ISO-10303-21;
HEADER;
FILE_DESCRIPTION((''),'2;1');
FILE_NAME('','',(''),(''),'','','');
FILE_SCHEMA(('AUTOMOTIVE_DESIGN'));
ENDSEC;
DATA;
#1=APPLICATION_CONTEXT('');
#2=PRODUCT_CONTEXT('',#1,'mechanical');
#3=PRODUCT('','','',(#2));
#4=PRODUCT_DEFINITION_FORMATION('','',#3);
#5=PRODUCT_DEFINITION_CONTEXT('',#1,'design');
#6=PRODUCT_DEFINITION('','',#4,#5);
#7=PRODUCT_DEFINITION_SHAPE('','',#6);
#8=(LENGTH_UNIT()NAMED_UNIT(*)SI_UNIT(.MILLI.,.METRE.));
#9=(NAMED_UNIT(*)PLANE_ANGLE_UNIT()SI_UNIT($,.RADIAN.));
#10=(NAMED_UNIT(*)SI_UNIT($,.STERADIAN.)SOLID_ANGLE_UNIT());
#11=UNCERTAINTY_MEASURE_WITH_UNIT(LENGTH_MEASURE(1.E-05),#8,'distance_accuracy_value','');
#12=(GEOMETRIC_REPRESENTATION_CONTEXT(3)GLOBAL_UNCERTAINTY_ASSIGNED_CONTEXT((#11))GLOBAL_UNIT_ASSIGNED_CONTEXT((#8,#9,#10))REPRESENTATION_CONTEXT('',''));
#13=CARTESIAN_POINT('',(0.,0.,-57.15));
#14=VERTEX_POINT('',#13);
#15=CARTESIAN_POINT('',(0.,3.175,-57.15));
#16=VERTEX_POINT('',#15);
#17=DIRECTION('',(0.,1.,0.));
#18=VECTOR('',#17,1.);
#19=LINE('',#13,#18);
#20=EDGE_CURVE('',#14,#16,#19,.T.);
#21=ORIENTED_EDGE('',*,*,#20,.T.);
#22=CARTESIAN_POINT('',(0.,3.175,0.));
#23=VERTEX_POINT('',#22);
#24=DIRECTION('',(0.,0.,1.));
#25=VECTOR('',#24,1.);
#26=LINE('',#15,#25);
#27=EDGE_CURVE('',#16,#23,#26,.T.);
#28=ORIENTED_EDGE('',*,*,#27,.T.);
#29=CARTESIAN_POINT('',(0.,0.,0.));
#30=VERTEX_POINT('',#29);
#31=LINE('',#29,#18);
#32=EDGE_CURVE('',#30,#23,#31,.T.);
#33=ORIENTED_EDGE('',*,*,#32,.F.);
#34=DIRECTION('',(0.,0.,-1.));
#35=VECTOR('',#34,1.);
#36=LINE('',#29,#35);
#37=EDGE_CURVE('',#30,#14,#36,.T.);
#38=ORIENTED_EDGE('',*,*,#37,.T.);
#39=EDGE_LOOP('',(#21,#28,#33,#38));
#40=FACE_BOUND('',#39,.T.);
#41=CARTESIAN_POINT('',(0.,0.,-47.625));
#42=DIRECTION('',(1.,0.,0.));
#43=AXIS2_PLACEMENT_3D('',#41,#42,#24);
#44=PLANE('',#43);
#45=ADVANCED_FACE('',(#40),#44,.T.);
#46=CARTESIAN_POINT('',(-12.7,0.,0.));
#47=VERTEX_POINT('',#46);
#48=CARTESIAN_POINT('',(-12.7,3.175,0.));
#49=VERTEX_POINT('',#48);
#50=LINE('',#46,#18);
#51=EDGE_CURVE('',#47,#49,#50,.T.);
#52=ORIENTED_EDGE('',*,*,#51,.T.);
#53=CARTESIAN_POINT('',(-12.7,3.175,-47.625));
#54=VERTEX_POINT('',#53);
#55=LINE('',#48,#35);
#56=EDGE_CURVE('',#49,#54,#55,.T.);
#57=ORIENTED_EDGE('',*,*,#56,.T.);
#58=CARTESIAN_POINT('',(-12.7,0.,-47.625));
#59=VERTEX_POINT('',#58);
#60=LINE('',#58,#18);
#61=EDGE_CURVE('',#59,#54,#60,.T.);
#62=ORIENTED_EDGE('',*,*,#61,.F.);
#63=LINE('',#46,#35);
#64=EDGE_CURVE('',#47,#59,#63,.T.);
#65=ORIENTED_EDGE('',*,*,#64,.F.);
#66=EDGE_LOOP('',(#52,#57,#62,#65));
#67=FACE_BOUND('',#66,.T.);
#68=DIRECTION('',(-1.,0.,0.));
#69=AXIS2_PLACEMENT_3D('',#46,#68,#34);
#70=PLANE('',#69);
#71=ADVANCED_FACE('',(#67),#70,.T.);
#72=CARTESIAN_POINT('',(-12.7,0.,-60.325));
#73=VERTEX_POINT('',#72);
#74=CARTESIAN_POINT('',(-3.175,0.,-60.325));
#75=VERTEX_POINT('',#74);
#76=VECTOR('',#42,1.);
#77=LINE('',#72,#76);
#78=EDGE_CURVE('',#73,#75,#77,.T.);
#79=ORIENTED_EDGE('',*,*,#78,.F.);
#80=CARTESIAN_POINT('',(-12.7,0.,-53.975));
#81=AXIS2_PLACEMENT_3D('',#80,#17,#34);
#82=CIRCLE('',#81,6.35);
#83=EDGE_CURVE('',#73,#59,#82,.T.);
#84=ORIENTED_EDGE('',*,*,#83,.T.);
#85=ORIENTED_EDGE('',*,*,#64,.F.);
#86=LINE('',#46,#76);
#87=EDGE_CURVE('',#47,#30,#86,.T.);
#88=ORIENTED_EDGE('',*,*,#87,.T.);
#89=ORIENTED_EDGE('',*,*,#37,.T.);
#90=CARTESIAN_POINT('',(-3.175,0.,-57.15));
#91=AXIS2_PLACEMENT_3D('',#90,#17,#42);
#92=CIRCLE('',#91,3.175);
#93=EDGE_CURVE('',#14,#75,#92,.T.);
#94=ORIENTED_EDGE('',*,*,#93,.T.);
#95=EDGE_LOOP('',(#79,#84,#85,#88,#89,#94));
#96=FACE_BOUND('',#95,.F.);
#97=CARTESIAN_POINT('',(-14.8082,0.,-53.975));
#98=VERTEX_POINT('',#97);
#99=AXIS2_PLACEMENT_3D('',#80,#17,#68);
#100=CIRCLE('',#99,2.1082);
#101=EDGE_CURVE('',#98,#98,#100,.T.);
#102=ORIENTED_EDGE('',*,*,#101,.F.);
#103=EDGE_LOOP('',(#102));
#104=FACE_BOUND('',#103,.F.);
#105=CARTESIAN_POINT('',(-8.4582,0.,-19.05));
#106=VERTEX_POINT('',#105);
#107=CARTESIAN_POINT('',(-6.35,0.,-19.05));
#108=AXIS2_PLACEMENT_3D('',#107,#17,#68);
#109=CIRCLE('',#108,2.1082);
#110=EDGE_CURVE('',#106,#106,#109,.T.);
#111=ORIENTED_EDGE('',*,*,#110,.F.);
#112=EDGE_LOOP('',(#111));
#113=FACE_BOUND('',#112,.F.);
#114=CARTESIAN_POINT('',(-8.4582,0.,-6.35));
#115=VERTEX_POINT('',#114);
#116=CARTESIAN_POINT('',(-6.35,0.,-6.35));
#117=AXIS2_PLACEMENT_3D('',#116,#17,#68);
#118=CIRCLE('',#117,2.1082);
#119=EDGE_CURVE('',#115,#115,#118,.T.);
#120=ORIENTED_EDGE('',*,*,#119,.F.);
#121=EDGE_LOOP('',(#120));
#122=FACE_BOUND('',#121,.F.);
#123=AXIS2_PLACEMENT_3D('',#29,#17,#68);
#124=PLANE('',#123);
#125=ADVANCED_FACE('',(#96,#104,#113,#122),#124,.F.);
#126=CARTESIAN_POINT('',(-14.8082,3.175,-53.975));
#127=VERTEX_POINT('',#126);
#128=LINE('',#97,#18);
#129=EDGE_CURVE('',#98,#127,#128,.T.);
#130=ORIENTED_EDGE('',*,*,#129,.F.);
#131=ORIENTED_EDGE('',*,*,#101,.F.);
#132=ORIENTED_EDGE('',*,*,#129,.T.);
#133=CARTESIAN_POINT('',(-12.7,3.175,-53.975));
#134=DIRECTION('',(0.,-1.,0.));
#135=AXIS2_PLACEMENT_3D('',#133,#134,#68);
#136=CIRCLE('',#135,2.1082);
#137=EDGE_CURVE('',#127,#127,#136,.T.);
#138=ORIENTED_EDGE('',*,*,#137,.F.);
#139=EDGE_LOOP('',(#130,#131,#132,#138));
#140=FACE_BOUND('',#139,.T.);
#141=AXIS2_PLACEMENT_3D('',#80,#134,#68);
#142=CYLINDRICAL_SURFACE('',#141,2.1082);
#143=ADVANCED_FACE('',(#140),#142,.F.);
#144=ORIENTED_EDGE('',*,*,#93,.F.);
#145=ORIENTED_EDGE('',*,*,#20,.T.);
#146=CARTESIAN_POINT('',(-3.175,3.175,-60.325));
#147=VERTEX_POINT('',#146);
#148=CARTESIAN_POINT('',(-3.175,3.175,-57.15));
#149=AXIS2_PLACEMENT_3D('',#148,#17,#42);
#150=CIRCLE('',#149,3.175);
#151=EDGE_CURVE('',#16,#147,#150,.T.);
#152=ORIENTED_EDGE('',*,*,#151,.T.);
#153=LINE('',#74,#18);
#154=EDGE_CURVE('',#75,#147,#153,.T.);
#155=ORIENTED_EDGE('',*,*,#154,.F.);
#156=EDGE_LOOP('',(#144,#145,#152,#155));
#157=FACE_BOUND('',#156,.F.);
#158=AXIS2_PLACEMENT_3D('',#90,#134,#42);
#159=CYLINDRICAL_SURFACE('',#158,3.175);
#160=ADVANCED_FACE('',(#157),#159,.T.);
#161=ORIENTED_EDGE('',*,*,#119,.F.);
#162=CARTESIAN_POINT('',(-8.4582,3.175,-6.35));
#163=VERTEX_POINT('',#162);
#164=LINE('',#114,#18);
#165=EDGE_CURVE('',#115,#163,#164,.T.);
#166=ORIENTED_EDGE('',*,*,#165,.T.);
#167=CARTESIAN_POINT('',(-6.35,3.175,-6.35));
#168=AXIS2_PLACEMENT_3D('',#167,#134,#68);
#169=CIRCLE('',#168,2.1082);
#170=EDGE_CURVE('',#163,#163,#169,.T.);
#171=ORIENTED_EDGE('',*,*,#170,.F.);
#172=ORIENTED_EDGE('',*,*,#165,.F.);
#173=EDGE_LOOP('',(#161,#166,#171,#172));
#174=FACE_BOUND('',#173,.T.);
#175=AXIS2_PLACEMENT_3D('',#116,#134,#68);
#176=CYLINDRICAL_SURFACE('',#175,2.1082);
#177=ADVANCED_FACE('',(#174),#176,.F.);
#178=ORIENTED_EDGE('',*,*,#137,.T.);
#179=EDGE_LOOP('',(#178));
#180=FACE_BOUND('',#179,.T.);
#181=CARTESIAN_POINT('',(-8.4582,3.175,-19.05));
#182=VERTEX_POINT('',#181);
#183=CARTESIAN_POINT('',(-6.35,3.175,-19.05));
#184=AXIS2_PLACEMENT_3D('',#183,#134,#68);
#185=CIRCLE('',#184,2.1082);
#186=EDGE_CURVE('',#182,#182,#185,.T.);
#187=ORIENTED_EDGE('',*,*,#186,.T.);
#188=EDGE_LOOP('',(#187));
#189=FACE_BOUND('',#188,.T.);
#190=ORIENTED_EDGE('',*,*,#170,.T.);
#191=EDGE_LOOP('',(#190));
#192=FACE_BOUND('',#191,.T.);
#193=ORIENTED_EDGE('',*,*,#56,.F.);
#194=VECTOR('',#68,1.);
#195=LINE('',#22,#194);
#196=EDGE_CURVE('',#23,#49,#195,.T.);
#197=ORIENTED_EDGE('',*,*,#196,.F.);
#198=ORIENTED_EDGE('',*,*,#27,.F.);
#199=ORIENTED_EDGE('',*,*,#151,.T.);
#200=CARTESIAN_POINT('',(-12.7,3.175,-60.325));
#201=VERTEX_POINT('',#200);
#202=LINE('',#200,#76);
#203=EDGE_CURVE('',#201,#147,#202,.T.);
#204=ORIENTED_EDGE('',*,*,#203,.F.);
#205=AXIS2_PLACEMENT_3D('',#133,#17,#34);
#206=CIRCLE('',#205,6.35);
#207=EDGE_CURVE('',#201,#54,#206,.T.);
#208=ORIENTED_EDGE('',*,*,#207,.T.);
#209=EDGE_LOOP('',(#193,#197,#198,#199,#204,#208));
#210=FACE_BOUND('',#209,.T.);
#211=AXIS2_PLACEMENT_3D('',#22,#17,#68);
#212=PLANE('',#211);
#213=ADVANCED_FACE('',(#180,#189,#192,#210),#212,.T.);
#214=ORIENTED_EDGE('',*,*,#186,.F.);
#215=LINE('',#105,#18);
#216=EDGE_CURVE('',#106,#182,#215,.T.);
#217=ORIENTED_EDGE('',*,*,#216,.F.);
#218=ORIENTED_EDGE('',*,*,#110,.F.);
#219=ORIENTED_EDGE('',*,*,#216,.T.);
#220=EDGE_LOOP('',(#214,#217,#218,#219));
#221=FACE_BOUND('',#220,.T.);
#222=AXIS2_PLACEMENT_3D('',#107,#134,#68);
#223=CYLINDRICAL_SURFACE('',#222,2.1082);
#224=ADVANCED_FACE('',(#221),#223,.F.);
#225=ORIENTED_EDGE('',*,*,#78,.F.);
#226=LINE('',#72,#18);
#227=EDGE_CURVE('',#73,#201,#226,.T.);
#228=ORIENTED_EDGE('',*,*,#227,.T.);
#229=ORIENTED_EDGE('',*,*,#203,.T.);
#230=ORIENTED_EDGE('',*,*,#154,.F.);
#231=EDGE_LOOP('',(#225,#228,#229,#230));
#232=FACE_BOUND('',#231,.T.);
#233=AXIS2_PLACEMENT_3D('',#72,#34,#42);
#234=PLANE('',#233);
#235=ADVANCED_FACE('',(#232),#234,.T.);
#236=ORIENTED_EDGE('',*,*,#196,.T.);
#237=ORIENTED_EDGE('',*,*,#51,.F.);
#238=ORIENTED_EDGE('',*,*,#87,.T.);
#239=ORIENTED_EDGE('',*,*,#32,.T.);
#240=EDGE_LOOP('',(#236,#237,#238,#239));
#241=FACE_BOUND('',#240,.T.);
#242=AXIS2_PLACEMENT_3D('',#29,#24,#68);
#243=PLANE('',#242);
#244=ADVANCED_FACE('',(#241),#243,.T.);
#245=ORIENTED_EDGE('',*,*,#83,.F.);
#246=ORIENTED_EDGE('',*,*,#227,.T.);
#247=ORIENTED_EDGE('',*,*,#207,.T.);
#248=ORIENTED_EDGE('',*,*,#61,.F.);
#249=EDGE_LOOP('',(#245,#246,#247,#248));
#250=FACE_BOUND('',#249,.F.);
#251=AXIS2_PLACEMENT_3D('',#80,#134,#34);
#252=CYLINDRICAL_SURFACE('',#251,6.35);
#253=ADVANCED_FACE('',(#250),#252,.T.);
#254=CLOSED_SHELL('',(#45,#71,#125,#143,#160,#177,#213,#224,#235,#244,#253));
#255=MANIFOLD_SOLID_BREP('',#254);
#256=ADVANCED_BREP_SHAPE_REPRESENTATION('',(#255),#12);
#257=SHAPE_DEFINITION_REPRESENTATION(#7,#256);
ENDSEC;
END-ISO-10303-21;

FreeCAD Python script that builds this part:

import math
import FreeCAD as App
import Part
import Sketcher

V = App.Vector
Q = App.Units.Quantity

doc = App.newDocument("Part")
body = doc.addObject("PartDesign::Body", "Body")

sketch1 = body.newObject("Sketcher::SketchObject", "Sketch")
sketch1.AttachmentSupport = (doc.getObject("XZ_Plane"), [""])
sketch1.MapMode = "FlatFace"
sketch1.addGeometry([
    Part.LineSegment(V(0, 0, 0), V(0, -57.1, 0)),
    Part.ArcOfCircle(Part.Circle(V(-3.2, -57.1, 0), V(0, 0, 1), 3.2), math.radians(-90), math.radians(0)),
    Part.LineSegment(V(-3.2, -60.3, 0), V(-12.7, -60.3, 0)),
    Part.ArcOfCircle(Part.Circle(V(-12.7, -54, 0), V(0, 0, 1), 6.4), math.radians(90), math.radians(270)),
    Part.LineSegment(V(-12.7, -47.6, 0), V(-12.7, 0, 0)),
    Part.LineSegment(V(-12.7, 0, 0), V(0, 0, 0)),
    Part.Circle(V(-6.3, -6.3, 0), V(0, 0, 1), 2.1),
    Part.Circle(V(-6.3, -19.1, 0), V(0, 0, 1), 2.1),
    Part.Circle(V(-12.7, -54, 0), V(0, 0, 1), 2.1),
], False)
sketch1.addConstraint([
    Sketcher.Constraint("Tangent", 0, 2, 1, 2),
    Sketcher.Constraint("Tangent", 1, 1, 2, 1),
    Sketcher.Constraint("Tangent", 2, 2, 3, 2),
    Sketcher.Constraint("Coincident", 3, 1, 4, 1),
    Sketcher.Constraint("Coincident", 4, 2, 5, 1),
    Sketcher.Constraint("Coincident", 5, 2, 0, 1),
    Sketcher.Constraint("Vertical", 0),
    Sketcher.Constraint("Horizontal", 2),
    Sketcher.Constraint("Vertical", 4),
    Sketcher.Constraint("Horizontal", 5),
    Sketcher.Constraint("Coincident", 5, 2, -1, 1),
    Sketcher.Constraint("Coincident", 8, 3, 3, 3),
    Sketcher.Constraint("Equal", 6, 7),
    Sketcher.Constraint("Equal", 7, 8),
    Sketcher.Constraint("Vertical", 6, 3, 7, 3),
    Sketcher.Constraint("Vertical", 2, 2, 3, 1),
    Sketcher.Constraint("Radius", 3, Q("0.25 in")),
    Sketcher.Constraint("Diameter", 6, Q("0.166 in")),
    Sketcher.Constraint("DistanceX", 5, 1, 5, 2, Q("0.5 in")),
    Sketcher.Constraint("Radius", 1, Q("0.125 in")),
    Sketcher.Constraint("DistanceY", 7, 3, 6, 3, Q("0.5 in")),
    Sketcher.Constraint("DistanceY", 4, 1, 4, 2, Q("1.875 in")),
    Sketcher.Constraint("DistanceX", 6, 3, -1, 1, Q("0.25 in")),
    Sketcher.Constraint("DistanceY", 6, 3, -1, 1, Q("0.25 in")),
])
pad1 = body.newObject("PartDesign::Pad", "Pad")
pad1.Profile = sketch1
pad1.Length = Q("0.125 in")
pad1.Reversed = True

doc.recompute()
